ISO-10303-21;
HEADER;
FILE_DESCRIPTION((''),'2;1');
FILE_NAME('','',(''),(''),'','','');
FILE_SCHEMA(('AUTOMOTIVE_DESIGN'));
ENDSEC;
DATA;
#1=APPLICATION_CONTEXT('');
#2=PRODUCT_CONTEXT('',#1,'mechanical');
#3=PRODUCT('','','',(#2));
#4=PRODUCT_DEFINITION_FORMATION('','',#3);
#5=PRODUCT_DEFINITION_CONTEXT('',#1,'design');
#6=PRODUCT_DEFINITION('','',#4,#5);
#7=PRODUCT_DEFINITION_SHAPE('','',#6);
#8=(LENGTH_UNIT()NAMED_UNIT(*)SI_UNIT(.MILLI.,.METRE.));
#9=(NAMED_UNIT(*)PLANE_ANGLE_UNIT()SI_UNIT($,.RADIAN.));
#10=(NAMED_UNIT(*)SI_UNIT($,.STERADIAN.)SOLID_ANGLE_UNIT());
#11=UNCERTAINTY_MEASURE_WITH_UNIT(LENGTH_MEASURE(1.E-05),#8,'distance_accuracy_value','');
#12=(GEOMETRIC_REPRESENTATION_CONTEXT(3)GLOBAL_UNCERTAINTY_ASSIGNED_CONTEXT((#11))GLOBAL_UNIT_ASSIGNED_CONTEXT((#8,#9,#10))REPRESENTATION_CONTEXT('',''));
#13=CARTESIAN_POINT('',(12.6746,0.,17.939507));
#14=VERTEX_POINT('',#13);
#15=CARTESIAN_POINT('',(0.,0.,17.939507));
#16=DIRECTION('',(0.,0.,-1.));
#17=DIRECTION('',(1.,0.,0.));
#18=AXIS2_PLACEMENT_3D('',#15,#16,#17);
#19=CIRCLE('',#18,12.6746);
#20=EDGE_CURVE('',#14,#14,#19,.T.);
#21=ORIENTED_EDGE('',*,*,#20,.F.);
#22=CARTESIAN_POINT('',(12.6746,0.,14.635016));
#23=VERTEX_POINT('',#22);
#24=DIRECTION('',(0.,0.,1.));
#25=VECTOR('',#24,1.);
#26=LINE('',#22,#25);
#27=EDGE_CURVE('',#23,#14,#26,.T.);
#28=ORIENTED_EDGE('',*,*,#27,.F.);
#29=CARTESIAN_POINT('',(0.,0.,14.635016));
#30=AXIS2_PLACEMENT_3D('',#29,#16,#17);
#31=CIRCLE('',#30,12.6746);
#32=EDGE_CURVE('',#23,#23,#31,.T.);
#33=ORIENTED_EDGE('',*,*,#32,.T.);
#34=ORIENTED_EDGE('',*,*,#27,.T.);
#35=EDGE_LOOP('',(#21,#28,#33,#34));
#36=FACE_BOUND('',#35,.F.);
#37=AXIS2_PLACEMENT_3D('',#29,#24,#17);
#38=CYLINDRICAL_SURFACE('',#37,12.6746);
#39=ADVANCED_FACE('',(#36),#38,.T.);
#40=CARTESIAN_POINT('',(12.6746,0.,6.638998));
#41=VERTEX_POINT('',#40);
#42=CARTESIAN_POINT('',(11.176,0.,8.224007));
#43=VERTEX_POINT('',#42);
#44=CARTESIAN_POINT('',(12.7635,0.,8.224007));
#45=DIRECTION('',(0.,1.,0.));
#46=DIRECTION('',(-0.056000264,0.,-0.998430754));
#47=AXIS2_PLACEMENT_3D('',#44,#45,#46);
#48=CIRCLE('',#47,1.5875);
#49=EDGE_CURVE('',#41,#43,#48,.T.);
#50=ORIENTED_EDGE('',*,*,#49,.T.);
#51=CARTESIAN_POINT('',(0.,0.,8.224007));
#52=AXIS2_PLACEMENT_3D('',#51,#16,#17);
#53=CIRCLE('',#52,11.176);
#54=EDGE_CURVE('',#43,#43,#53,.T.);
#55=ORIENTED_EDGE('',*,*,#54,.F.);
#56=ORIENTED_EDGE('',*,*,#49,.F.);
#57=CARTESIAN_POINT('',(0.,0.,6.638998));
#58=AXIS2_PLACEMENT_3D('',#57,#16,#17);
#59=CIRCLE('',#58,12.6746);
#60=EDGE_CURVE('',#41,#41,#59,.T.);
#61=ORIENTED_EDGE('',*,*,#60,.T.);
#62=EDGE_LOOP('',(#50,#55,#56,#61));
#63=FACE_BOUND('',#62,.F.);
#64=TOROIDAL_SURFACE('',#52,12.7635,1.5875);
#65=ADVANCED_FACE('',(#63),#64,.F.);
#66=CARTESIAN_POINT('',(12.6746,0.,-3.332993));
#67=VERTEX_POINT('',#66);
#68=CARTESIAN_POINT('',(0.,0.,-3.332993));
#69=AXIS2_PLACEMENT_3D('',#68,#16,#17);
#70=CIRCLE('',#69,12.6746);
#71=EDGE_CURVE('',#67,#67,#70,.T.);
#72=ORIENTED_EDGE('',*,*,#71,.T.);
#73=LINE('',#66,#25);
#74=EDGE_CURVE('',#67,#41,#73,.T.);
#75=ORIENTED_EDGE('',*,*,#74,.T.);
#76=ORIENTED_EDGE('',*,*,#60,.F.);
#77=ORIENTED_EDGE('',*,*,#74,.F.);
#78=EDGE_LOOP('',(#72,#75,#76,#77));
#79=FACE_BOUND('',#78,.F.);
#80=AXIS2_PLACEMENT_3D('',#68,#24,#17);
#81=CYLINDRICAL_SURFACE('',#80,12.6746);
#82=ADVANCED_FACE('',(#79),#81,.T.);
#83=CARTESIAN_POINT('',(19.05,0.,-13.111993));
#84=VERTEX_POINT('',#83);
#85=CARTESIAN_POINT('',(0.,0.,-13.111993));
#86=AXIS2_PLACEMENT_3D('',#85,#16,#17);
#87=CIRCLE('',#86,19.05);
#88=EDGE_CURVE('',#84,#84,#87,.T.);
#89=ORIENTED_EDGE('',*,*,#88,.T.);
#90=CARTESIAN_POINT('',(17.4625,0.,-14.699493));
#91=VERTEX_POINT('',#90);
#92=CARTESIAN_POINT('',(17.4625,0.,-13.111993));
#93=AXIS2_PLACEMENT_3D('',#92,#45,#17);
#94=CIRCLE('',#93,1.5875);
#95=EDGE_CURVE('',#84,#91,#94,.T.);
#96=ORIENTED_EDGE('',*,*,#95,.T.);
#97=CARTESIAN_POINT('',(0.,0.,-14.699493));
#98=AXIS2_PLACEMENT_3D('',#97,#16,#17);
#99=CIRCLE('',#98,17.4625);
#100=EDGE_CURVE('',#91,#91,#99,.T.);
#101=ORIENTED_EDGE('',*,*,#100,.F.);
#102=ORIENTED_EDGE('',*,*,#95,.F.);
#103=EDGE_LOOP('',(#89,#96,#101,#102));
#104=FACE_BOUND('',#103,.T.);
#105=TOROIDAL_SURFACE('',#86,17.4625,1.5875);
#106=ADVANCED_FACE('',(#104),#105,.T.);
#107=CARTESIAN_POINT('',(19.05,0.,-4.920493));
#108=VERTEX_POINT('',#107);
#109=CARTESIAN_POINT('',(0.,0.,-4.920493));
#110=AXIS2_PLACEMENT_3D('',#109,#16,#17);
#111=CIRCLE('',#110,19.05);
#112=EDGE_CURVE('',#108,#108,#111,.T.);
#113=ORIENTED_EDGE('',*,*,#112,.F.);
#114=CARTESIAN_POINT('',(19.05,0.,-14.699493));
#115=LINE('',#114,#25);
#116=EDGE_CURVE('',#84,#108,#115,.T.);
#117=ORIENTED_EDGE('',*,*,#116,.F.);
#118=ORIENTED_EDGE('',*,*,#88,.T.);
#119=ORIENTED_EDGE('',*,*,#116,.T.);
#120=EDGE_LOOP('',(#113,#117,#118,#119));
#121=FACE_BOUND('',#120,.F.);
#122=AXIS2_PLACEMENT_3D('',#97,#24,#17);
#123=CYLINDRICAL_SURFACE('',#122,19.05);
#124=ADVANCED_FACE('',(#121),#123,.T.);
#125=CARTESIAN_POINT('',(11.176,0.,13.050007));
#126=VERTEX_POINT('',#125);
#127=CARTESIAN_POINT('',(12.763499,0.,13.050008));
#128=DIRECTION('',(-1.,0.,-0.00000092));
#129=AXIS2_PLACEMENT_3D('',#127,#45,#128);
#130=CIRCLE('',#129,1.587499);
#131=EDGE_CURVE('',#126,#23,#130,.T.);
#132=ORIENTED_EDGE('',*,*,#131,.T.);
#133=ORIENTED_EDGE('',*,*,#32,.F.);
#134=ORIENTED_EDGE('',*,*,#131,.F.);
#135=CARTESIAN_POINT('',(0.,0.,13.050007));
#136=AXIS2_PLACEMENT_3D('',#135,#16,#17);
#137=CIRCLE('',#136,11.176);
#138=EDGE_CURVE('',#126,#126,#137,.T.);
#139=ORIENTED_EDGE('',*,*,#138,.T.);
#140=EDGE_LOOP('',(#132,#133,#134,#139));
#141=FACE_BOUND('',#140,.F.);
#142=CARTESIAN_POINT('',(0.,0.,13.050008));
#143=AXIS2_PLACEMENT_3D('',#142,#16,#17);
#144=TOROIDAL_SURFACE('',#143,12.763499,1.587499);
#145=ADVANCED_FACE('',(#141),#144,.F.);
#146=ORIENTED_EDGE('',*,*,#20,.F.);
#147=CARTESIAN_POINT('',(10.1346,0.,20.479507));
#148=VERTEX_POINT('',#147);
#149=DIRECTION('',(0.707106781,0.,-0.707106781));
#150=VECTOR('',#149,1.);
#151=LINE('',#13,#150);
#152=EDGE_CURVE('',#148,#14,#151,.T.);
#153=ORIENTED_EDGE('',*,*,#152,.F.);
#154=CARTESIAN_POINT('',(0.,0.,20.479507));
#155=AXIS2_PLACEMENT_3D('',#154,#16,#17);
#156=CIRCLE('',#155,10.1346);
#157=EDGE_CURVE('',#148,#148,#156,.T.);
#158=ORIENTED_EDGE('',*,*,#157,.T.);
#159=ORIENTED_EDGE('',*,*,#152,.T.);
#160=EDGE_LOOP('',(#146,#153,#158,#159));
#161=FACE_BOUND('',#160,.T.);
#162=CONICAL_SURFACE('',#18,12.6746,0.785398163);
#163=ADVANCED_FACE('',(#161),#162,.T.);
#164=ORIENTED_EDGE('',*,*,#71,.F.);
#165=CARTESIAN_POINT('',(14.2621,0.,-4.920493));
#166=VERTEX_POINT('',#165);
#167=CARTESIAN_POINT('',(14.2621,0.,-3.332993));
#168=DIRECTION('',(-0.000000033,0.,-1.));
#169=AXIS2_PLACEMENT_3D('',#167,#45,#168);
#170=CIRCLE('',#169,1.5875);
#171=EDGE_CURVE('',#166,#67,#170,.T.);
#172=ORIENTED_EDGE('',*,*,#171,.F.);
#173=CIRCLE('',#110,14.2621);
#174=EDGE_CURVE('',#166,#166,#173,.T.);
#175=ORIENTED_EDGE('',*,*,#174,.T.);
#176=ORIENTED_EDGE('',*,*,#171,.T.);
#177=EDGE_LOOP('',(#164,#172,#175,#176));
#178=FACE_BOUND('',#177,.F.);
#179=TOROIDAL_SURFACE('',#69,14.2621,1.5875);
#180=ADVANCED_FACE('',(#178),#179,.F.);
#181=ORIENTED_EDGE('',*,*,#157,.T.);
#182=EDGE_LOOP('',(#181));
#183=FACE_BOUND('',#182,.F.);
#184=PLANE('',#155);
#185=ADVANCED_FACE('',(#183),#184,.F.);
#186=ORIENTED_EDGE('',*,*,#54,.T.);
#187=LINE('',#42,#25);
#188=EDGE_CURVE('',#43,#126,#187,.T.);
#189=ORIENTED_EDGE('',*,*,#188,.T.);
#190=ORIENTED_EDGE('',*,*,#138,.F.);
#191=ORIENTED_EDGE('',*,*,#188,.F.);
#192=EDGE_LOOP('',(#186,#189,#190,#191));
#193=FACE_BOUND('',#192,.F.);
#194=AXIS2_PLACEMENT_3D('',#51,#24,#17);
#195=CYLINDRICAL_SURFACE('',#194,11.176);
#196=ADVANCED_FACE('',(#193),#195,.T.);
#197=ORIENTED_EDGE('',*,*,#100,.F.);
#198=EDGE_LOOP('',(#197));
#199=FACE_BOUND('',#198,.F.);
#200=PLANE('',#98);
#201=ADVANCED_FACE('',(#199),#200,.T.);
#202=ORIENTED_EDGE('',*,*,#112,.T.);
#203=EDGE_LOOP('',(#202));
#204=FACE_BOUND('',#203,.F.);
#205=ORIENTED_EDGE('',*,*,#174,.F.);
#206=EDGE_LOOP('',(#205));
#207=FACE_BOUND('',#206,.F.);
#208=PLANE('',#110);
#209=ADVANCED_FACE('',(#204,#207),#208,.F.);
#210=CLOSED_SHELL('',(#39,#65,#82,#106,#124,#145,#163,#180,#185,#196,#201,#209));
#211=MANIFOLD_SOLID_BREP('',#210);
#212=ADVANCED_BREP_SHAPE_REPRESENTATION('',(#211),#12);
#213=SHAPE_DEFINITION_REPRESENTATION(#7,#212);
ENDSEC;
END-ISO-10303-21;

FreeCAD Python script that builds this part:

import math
import FreeCAD as App
import Part
import Sketcher

V = App.Vector
Q = App.Units.Quantity


def edges_at(feature, points):
    """Names of the edges that pass closest to the given points."""
    edges = feature.Shape.Edges
    near = lambda p: min(range(len(edges)), key=lambda i: edges[i].distToShape(Part.Vertex(*p))[0])
    return sorted({f"Edge{near(p) + 1}" for p in points})

doc = App.newDocument("Part")
body = doc.addObject("PartDesign::Body", "Body")

# Sketch on XZ plane
sketch1 = body.newObject("Sketcher::SketchObject", "Sketch")
sketch1.AttachmentSupport = (doc.getObject("XZ_Plane"), [""])
sketch1.MapMode = "FlatFace"
sketch1.addGeometry(Part.LineSegment(V(12.6746, 20.479507, 0), V(0, 20.479507, 0)), False)
sketch1.addGeometry(Part.LineSegment(V(0, 20.479507, 0), V(0, -14.699493, 0)), False)
sketch1.addGeometry(Part.LineSegment(V(0, -14.699493, 0), V(19.05, -14.699493, 0)), False)
sketch1.addGeometry(Part.LineSegment(V(19.05, -14.699493, 0), V(19.05, -4.920493, 0)), False)
sketch1.addGeometry(Part.LineSegment(V(19.05, -4.920493, 0), V(14.2621, -4.920493, 0)), False)
sketch1.addGeometry(Part.ArcOfCircle(Part.Circle(V(14.2621, -3.332993, 0), V(0, 0, 1), 1.5875), math.radians(-179.999998), math.radians(-90.000002)), False)
sketch1.addGeometry(Part.LineSegment(V(12.6746, -3.332993, 0), V(12.6746, 6.638998, 0)), False)
sketch1.addGeometry(Part.ArcOfCircle(Part.Circle(V(12.7635, 8.224007, 0), V(0, 0, 1), 1.5875), math.radians(-179.99999), math.radians(-93.210258)), False)
sketch1.addGeometry(Part.LineSegment(V(11.176, 8.224007, 0), V(11.176, 13.050007, 0)), False)
sketch1.addGeometry(Part.ArcOfCircle(Part.Circle(V(12.763499, 13.050008, 0), V(0, 0, 1), 1.587499), math.radians(93.210196), math.radians(180.000053)), False)
sketch1.addGeometry(Part.LineSegment(V(12.6746, 14.635016, 0), V(12.6746, 20.479507, 0)), False)
sketch1.addConstraint(Sketcher.Constraint("Coincident", 0, 2, 1, 1))
sketch1.addConstraint(Sketcher.Constraint("Coincident", 1, 2, 2, 1))
sketch1.addConstraint(Sketcher.Constraint("Coincident", 2, 2, 3, 1))
sketch1.addConstraint(Sketcher.Constraint("Coincident", 3, 2, 4, 1))
sketch1.addConstraint(Sketcher.Constraint("Tangent", 4, 2, 5, 2))
sketch1.addConstraint(Sketcher.Constraint("Tangent", 5, 1, 6, 1))
sketch1.addConstraint(Sketcher.Constraint("Coincident", 6, 2, 7, 2))
sketch1.addConstraint(Sketcher.Constraint("Tangent", 7, 1, 8, 1))
sketch1.addConstraint(Sketcher.Constraint("Tangent", 8, 2, 9, 2))
sketch1.addConstraint(Sketcher.Constraint("Coincident", 9, 1, 10, 1))
sketch1.addConstraint(Sketcher.Constraint("Coincident", 10, 2, 0, 1))
sketch1.addConstraint(Sketcher.Constraint("Horizontal", 0))
sketch1.addConstraint(Sketcher.Constraint("Vertical", 1))
sketch1.addConstraint(Sketcher.Constraint("Horizontal", 2))
sketch1.addConstraint(Sketcher.Constraint("Vertical", 3))
sketch1.addConstraint(Sketcher.Constraint("Horizontal", 4))
sketch1.addConstraint(Sketcher.Constraint("Vertical", 6))
sketch1.addConstraint(Sketcher.Constraint("Vertical", 8))
sketch1.addConstraint(Sketcher.Constraint("Vertical", 10))
sketch1.addConstraint(Sketcher.Constraint("Equal", 5, 7))
sketch1.addConstraint(Sketcher.Constraint("Equal", 7, 9))
sketch1.addConstraint(Sketcher.Constraint("PointOnObject", 0, 2, -2))
sketch1.addConstraint(Sketcher.Constraint("Vertical", 6, 2, 9, 1))
sketch1.addConstraint(Sketcher.Constraint("Radius", 5, Q("0.0625 in")))
sketch1.addConstraint(Sketcher.Constraint("DistanceX", 2, 1, 2, 2, Q("0.75 in")))
sketch1.addConstraint(Sketcher.Constraint("DistanceY", 8, 1, 8, 2, Q("0.19 in")))
sketch1.addConstraint(Sketcher.Constraint("DistanceX", 0, 2, 0, 1, Q("0.499 in")))
sketch1.addConstraint(Sketcher.Constraint("DistanceY", 1, 2, 1, 1, Q("1.385 in")))
sketch1.addConstraint(Sketcher.Constraint("DistanceY", 3, 1, 3, 2, Q("0.385 in")))
sketch1.addConstraint(Sketcher.Constraint("DistanceX", -1, 1, 7, 1, Q("0.44 in")))
sketch1.addConstraint(Sketcher.Constraint("DistanceY", 5, 3, 7, 3, Q("0.455 in")))
sketch1.addConstraint(Sketcher.Constraint("DistanceY", -1, 1, 9, 3, Q("13.050008 mm")))
revolution = body.newObject("PartDesign::Revolution", "Revolution")
revolution.Profile = sketch1
revolution.ReferenceAxis = (sketch1, ["V_Axis"])
revolution.Angle = 360
doc.recompute()

chamfer = body.newObject("PartDesign::Chamfer", "Chamfer")
chamfer.Base = (revolution, edges_at(revolution, [(-12.675, 0, 20.48)]))
chamfer.Size = Q("0.1 in")
doc.recompute()

fillet = body.newObject("PartDesign::Fillet", "Fillet")
fillet.Base = (chamfer, edges_at(chamfer, [(-19.05, 0, -14.699)]))
fillet.Radius = Q("0.0625 in")

doc.recompute()
